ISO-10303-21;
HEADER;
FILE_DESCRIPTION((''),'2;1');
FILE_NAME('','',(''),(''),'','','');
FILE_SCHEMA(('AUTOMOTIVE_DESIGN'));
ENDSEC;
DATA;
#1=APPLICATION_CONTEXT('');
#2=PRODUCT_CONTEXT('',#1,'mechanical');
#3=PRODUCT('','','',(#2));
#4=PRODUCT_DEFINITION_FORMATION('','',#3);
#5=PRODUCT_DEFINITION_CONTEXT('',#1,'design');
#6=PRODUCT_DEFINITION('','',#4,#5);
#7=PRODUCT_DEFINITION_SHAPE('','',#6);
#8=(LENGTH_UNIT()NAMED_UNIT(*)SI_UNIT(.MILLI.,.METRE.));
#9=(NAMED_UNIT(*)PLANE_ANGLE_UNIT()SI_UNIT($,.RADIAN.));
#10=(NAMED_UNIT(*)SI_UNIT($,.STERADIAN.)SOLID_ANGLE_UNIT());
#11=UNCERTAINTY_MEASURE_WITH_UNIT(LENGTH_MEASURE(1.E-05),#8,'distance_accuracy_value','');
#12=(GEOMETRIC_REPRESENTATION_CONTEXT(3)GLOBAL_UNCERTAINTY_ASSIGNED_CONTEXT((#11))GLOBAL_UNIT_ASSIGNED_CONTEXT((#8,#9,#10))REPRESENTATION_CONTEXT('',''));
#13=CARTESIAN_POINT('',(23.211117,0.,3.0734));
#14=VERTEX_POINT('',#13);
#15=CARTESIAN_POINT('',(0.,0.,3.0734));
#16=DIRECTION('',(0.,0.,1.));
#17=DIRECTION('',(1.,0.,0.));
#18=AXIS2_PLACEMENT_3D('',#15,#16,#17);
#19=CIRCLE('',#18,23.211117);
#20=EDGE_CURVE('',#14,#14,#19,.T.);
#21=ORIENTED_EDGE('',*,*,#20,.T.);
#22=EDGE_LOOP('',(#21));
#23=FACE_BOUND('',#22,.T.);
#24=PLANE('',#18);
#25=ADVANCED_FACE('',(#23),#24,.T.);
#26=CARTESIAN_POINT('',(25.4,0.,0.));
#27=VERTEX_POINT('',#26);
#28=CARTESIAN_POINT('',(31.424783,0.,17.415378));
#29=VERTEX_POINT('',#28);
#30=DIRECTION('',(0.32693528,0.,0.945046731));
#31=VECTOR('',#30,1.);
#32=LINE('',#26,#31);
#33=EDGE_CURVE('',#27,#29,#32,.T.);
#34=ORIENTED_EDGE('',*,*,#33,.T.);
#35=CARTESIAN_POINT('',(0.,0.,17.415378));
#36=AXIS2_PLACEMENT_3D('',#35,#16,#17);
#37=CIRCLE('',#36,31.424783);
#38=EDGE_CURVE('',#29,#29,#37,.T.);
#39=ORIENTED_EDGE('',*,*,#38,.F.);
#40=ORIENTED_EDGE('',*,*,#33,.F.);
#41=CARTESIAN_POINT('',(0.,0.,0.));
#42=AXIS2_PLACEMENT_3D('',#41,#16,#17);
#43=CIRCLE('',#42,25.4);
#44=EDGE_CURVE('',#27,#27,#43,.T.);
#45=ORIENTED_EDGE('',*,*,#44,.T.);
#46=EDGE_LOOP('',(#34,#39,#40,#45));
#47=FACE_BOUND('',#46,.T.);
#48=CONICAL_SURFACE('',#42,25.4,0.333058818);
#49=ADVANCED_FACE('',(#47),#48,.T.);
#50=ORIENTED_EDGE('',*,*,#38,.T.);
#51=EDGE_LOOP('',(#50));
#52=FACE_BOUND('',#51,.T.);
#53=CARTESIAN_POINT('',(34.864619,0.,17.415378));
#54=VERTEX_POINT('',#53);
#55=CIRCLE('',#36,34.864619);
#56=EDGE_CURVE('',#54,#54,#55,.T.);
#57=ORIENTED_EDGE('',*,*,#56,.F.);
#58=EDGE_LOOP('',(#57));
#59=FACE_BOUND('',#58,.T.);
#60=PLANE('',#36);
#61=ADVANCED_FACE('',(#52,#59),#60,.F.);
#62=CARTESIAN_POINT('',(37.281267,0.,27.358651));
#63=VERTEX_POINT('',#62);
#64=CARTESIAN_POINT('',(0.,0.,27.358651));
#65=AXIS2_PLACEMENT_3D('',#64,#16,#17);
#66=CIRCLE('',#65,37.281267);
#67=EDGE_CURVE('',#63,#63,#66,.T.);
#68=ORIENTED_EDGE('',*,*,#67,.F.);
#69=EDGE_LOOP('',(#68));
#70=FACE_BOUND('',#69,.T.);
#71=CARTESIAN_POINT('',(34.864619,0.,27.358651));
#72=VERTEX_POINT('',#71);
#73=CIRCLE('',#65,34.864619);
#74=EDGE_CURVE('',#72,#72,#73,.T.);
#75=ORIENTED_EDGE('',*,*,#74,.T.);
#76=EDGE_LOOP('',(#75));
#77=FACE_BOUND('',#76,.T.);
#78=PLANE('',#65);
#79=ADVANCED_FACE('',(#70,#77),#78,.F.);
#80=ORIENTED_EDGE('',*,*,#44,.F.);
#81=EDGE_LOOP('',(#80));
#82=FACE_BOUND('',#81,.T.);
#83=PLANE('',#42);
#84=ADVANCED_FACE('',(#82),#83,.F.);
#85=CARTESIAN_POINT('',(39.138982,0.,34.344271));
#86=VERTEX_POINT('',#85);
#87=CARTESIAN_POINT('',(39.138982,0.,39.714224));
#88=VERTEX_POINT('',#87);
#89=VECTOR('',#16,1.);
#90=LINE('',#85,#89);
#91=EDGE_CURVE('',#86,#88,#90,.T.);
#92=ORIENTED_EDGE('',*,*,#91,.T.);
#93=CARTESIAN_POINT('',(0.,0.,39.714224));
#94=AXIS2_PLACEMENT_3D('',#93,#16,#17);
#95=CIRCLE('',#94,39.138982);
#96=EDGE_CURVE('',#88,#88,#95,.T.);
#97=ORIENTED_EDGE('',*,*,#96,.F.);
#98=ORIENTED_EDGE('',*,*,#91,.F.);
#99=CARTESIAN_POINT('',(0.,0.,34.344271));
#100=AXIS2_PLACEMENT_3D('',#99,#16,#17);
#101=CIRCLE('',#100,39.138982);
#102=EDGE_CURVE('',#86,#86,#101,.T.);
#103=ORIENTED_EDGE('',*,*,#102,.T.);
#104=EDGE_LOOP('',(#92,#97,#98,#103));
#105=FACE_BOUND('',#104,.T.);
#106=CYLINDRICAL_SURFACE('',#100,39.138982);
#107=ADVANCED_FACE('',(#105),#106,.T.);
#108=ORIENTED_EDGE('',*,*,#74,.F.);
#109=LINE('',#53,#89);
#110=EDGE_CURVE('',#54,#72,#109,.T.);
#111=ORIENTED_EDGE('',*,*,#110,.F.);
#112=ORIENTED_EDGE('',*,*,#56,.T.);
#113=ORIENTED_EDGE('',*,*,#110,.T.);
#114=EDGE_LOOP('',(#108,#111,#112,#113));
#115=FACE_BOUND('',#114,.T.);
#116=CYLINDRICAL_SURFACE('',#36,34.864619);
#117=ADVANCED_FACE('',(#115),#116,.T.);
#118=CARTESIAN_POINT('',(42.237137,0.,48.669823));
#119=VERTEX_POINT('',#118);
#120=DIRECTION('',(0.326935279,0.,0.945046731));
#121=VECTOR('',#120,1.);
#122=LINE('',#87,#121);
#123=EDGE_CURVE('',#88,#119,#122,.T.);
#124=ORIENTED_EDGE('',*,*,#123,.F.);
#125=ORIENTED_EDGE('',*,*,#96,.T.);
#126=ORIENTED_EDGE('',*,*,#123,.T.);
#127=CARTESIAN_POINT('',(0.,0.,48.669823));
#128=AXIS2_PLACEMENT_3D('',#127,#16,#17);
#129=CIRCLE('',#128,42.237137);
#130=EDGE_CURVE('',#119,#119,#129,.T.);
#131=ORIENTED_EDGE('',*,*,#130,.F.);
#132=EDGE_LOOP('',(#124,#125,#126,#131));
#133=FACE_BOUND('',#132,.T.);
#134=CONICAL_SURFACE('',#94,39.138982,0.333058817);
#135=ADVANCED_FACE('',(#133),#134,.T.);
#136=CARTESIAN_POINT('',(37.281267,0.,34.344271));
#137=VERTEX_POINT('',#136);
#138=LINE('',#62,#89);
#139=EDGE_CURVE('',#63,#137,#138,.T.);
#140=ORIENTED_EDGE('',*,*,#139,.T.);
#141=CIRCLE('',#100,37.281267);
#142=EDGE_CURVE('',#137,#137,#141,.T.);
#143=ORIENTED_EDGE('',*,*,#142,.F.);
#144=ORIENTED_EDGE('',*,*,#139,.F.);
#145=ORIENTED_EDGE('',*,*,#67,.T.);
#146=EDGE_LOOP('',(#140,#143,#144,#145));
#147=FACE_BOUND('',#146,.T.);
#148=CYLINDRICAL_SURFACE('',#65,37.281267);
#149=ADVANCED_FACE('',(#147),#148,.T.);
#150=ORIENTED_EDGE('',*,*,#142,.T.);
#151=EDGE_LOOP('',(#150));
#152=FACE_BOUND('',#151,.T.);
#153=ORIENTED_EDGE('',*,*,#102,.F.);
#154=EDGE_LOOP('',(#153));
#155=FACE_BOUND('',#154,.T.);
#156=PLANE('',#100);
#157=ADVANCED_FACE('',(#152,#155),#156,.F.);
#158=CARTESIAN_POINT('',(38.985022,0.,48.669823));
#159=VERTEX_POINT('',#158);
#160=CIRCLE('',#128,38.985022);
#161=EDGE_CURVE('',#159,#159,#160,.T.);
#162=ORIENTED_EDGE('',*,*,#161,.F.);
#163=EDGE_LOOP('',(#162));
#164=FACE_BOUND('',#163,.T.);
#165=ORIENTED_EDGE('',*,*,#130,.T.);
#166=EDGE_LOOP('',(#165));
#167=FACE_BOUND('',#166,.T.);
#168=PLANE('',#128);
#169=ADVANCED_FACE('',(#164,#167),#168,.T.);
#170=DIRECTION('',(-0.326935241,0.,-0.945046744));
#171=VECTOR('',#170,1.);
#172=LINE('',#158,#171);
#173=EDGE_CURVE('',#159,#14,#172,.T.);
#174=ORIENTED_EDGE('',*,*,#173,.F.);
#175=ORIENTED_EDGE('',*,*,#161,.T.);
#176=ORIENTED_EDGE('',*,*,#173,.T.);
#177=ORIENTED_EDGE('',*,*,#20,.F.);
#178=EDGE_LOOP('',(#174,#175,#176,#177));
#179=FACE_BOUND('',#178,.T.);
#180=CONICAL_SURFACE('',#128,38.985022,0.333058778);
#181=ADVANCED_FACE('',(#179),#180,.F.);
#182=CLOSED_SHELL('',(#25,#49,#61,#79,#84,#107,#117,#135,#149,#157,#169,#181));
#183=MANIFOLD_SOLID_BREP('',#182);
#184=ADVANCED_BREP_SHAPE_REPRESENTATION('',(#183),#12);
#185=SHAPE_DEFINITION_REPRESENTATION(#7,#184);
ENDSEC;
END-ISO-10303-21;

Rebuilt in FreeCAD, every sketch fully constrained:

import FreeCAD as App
import Part
import Sketcher
Q = App.Units.Quantity


def add_polygon(sketch, points):
    """Adds a closed chain of lines whose ends are joined by coincident constraints."""
    first, n = sketch.GeometryCount, len(points)
    for a, b in zip(points, points[1:] + points[:1]):
        sketch.addGeometry(Part.LineSegment(App.Vector(*a, 0), App.Vector(*b, 0)), False)
    for i in range(n):
        sketch.addConstraint(Sketcher.Constraint("Coincident", first + i, 2, first + (i + 1) % n, 1))

doc = App.newDocument("Part")
body = doc.addObject("PartDesign::Body", "Body")

sketch1 = body.newObject("Sketcher::SketchObject", "Sketch")
sketch1.AttachmentSupport = (doc.getObject("XZ_Plane"), [""])
sketch1.MapMode = "FlatFace"
add_polygon(sketch1, [(0, 0), (25.4, 0), (31.4, 17.4), (34.9, 17.4), (34.9, 27.4), (37.3, 27.4), (37.3, 34.3), (39.1, 34.3), (39.1, 39.7), (42.2, 48.7), (39, 48.7), (23.2, 3.1), (0, 3.1)])
sketch1.addConstraint(Sketcher.Constraint("Horizontal", 0))
sketch1.addConstraint(Sketcher.Constraint("Horizontal", 2))
sketch1.addConstraint(Sketcher.Constraint("Vertical", 3))
sketch1.addConstraint(Sketcher.Constraint("Horizontal", 4))
sketch1.addConstraint(Sketcher.Constraint("Vertical", 5))
sketch1.addConstraint(Sketcher.Constraint("Horizontal", 6))
sketch1.addConstraint(Sketcher.Constraint("Vertical", 7))
sketch1.addConstraint(Sketcher.Constraint("Horizontal", 9))
sketch1.addConstraint(Sketcher.Constraint("Horizontal", 11))
sketch1.addConstraint(Sketcher.Constraint("Vertical", 12))
sketch1.addConstraint(Sketcher.Constraint("Coincident", 12, 2, -1, 1))
sketch1.addConstraint(Sketcher.Constraint("Parallel", 1, 8))
sketch1.addConstraint(Sketcher.Constraint("Parallel", 8, 10))
sketch1.addConstraint(Sketcher.Constraint("DistanceX", 0, 1, 0, 2, Q("1 in")))
sketch1.addConstraint(Sketcher.Constraint("DistanceY", 12, 2, 12, 1, Q("0.121 in")))
sketch1.addConstraint(Sketcher.Constraint("DistanceX", 4, 1, 4, 2, Q("2.416648 mm")))
sketch1.addConstraint(Sketcher.Constraint("DistanceY", 5, 1, 5, 2, Q("6.98562 mm")))
sketch1.addConstraint(Sketcher.Constraint("DistanceX", 1, 2, 6, 2, Q("7.714199 mm")))
sketch1.addConstraint(Sketcher.Constraint("DistanceY", 7, 2, 8, 2, Q("8.955599 mm")))
sketch1.addConstraint(Sketcher.Constraint("DistanceX", 10, 2, 2, 2, Q("11.653502 mm")))
sketch1.addConstraint(Sketcher.Constraint("Distance", 1, Q("18.42806 mm")))
sketch1.addConstraint(Sketcher.Constraint("DistanceX", 2, 1, 2, 2, Q("3.439836 mm")))
sketch1.addConstraint(Sketcher.Constraint("DistanceX", 9, 2, 9, 1, Q("3.252115 mm")))
sketch1.addConstraint(Sketcher.Constraint("DistanceX", 11, 2, 11, 1, Q("23.211117 mm")))
sketch1.addConstraint(Sketcher.Constraint("DistanceY", 3, 1, 3, 2, Q("9.943273 mm")))
revolution = body.newObject("PartDesign::Revolution", "Revolution")
revolution.Profile = sketch1
revolution.ReferenceAxis = (sketch1, ["V_Axis"])
revolution.Angle = 360

doc.recompute()
